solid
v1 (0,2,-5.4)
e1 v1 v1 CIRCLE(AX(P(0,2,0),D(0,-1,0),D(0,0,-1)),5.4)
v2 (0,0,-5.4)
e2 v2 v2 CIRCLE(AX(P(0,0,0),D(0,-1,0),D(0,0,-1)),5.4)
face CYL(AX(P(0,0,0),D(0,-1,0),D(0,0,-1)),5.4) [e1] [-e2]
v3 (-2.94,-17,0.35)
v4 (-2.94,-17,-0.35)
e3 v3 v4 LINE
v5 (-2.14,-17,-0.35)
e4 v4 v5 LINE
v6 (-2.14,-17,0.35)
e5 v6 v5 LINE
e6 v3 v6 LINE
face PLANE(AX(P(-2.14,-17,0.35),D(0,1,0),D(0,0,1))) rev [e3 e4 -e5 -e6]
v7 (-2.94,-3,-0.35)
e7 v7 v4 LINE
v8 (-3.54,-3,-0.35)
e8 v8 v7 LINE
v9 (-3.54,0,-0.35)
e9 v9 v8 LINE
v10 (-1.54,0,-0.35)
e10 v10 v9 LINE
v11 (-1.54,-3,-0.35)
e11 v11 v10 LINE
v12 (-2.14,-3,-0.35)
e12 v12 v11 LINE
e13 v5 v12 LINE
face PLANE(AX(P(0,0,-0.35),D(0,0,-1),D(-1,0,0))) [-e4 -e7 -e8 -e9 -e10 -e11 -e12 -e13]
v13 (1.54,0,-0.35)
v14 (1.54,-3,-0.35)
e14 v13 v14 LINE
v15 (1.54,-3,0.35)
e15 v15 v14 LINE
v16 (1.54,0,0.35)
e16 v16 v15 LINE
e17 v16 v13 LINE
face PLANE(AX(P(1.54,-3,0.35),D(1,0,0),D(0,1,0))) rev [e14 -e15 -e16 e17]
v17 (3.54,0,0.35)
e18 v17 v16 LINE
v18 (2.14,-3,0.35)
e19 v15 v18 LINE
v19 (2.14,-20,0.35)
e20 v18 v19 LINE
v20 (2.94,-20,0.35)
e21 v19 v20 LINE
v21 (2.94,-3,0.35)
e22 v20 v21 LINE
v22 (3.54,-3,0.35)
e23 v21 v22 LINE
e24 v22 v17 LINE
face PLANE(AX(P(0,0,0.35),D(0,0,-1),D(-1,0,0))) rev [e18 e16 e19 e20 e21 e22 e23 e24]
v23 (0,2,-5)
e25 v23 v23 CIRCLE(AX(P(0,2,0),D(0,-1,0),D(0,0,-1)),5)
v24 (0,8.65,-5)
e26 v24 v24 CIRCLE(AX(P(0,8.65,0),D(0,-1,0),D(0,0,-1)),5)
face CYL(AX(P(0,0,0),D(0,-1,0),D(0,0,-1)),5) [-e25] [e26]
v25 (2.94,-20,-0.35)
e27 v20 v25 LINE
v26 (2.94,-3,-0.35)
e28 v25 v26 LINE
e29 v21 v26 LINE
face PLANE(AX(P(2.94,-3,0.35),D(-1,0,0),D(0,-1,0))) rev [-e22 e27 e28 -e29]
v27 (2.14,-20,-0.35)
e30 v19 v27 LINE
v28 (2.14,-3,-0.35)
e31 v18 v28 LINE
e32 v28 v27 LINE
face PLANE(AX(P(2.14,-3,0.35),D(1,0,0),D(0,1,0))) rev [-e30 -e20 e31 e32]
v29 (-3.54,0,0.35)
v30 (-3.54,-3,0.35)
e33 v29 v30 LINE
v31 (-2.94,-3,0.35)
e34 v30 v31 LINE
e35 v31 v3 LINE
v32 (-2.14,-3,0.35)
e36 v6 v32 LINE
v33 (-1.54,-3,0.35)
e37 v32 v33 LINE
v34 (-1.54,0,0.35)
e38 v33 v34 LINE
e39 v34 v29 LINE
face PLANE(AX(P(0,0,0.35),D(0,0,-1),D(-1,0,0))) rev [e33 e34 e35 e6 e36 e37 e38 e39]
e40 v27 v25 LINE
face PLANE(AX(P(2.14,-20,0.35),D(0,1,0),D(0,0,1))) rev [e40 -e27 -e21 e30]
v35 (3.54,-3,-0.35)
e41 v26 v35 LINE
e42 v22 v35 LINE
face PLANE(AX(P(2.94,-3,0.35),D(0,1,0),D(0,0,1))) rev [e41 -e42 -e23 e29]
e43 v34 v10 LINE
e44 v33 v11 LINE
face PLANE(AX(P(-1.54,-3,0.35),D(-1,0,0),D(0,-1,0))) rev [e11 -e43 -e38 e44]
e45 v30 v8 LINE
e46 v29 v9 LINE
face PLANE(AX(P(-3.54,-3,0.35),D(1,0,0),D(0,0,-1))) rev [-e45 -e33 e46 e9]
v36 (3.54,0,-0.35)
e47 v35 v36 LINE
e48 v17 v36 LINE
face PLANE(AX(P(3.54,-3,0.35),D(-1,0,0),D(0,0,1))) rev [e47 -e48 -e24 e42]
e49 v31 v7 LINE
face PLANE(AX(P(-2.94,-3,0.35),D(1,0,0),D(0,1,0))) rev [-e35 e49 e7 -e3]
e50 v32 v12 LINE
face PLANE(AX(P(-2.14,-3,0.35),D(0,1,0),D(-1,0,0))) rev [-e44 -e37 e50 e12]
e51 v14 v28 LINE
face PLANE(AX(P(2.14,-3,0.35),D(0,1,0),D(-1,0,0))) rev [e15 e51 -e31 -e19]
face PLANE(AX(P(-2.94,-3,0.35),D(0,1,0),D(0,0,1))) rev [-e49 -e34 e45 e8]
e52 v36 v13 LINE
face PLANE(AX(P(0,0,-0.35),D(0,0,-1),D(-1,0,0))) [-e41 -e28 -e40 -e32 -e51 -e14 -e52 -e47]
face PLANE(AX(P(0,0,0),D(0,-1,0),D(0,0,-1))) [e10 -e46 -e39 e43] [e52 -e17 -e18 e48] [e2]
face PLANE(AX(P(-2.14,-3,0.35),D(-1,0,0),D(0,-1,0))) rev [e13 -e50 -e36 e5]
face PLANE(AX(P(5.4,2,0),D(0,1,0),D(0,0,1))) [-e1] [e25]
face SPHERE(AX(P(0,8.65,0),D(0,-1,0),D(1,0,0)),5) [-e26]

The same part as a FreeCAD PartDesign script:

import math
import FreeCAD as App
import Part
import Sketcher
from FreeCAD import Vector


def add_polygon(sketch, points):
    """Adds a closed chain of lines whose ends are joined by coincident constraints."""
    first, n = sketch.GeometryCount, len(points)
    for a, b in zip(points, points[1:] + points[:1]):
        sketch.addGeometry(Part.LineSegment(App.Vector(*a, 0), App.Vector(*b, 0)), False)
    for i in range(n):
        sketch.addConstraint(Sketcher.Constraint("Coincident", first + i, 2, first + (i + 1) % n, 1))

doc = App.newDocument("Part")
params = doc.addObject("Spreadsheet::Sheet", "Params")
for row, (alias, value) in enumerate([
    ("sketch1_radius", "5 mm"),
    ("sketch1_height", "2 mm"),
    ("sketch1_width", "5.4 mm"),
    ("sketch1_height2", "6.65 mm"),
    ("revolution_angle", "360 deg"),
    ("sketch2_width", "2 mm"),
    ("sketch2_height", "3 mm"),
    ("sketch2_height2", "17 mm"),
    ("sketch2_height3", "14 mm"),
    ("sketch2_width2", "0.6 mm"),
    ("pad1_length", "0.7 mm"),
], start=1):
    params.set(f"A{row}", alias)
    params.set(f"B{row}", "=" + value)
    params.setAlias(f"B{row}", alias)

body = doc.addObject("PartDesign::Body", "Body")

# Sketch on XY plane
sketch1 = body.newObject("Sketcher::SketchObject", "Sketch")
sketch1.AttachmentSupport = (doc.getObject("XY_Plane"), [""])
sketch1.MapMode = "FlatFace"
sketch1.addGeometry([
    Part.LineSegment(Vector(0, 0, 0), Vector(5.4, 0, 0)),  # 0
    Part.LineSegment(Vector(5.4, 0, 0), Vector(5.4, 2, 0)),  # 1
    Part.LineSegment(Vector(5.4, 2, 0), Vector(5, 2, 0)),  # 2
    Part.LineSegment(Vector(5, 2, 0), Vector(5, 8.65, 0)),  # 3
    Part.ArcOfCircle(Part.Circle(Vector(0, 8.65, 0), Vector(0, 0, 1), 5), math.radians(0), math.radians(90)),  # 4
    Part.LineSegment(Vector(0, 13.65, 0), Vector(0, 0, 0)),  # 5
], False)
sketch1.addConstraint([
    Sketcher.Constraint("Coincident", 0, 2, 1, 1),
    Sketcher.Constraint("Coincident", 1, 2, 2, 1),
    Sketcher.Constraint("Coincident", 2, 2, 3, 1),
    Sketcher.Constraint("Tangent", 3, 2, 4, 1),
    Sketcher.Constraint("Coincident", 4, 2, 5, 1),
    Sketcher.Constraint("Coincident", 5, 2, 0, 1),
    Sketcher.Constraint("Horizontal", 0),
    Sketcher.Constraint("Vertical", 1),
    Sketcher.Constraint("Horizontal", 2),
    Sketcher.Constraint("Vertical", 3),
    Sketcher.Constraint("Vertical", 5),
    Sketcher.Constraint("Coincident", 5, 2, -1, 1),
    Sketcher.Constraint("PointOnObject", 4, 3, -2),
    Sketcher.Constraint("Radius", 4, 5.0),
    Sketcher.Constraint("DistanceY", 1, 1, 1, 2, 2.0),
    Sketcher.Constraint("DistanceX", 0, 1, 0, 2, 5.4),
    Sketcher.Constraint("DistanceY", 3, 1, 3, 2, 6.65),
])
sketch1.setExpression("Constraints[13]", "Params.sketch1_radius")
sketch1.setExpression("Constraints[14]", "Params.sketch1_height")
sketch1.setExpression("Constraints[15]", "Params.sketch1_width")
sketch1.setExpression("Constraints[16]", "Params.sketch1_height2")
revolution = body.newObject("PartDesign::Revolution", "Revolution")
revolution.Profile = sketch1
revolution.ReferenceAxis = (sketch1, ["V_Axis"])
revolution.setExpression("Angle", "Params.revolution_angle")

# Sketch on XY plane
sketch2 = body.newObject("Sketcher::SketchObject", "Sketch001")
sketch2.AttachmentSupport = (doc.getObject("XY_Plane"), [""])
sketch2.MapMode = "FlatFace"
add_polygon(sketch2, [(1.54, 0), (1.54, -3), (2.14, -3), (2.14, -20), (2.94, -20), (2.94, -3), (3.54, -3), (3.54, 0)])  # lines 0-7
add_polygon(sketch2, [(-2.94, -17), (-2.14, -17), (-2.14, -3), (-1.54, -3), (-1.54, 0), (-3.54, 0), (-3.54, -3), (-2.94, -3)])  # lines 8-15
sketch2.addConstraint([
    Sketcher.Constraint("Vertical", 0),
    Sketcher.Constraint("Horizontal", 1),
    Sketcher.Constraint("Vertical", 2),
    Sketcher.Constraint("Horizontal", 3),
    Sketcher.Constraint("Vertical", 4),
    Sketcher.Constraint("Horizontal", 5),
    Sketcher.Constraint("Vertical", 6),
    Sketcher.Constraint("Horizontal", 7),
    Sketcher.Constraint("Horizontal", 8),
    Sketcher.Constraint("Vertical", 9),
    Sketcher.Constraint("Horizontal", 10),
    Sketcher.Constraint("Vertical", 11),
    Sketcher.Constraint("Horizontal", 12),
    Sketcher.Constraint("Vertical", 13),
    Sketcher.Constraint("Horizontal", 14),
    Sketcher.Constraint("Vertical", 15),
    Sketcher.Constraint("Symmetric", 7, 2, 11, 2, -1, 1),
    Sketcher.Constraint("Symmetric", 1, 2, 9, 2, -2),
    Sketcher.Constraint("Symmetric", 6, 2, 12, 2, -2),
    Sketcher.Constraint("Symmetric", 4, 2, 14, 2, -2),
    Sketcher.Constraint("Horizontal", 1, 2, 4, 2),
    Sketcher.Constraint("Equal", 1, 5),
    Sketcher.Constraint("DistanceX", 7, 2, 7, 1, 2.0),
    Sketcher.Constraint("DistanceY", 0, 2, 0, 1, 3.0),
    Sketcher.Constraint("DistanceY", 2, 2, 2, 1, 17.0),
    Sketcher.Constraint("DistanceY", 9, 1, 9, 2, 14.0),
    Sketcher.Constraint("DistanceX", 1, 1, 1, 2, 0.6),
    Sketcher.Constraint("DistanceX", -1, 1, 0, 2, 1.54),
])
sketch2.setExpression("Constraints[38]", "Params.sketch2_width")
sketch2.setExpression("Constraints[39]", "Params.sketch2_height")
sketch2.setExpression("Constraints[40]", "Params.sketch2_height2")
sketch2.setExpression("Constraints[41]", "Params.sketch2_height3")
sketch2.setExpression("Constraints[42]", "Params.sketch2_width2")
pad1 = body.newObject("PartDesign::Pad", "Pad")
pad1.Profile = sketch2
pad1.setExpression("Length", "Params.pad1_length")
pad1.Midplane = True

doc.recompute()
